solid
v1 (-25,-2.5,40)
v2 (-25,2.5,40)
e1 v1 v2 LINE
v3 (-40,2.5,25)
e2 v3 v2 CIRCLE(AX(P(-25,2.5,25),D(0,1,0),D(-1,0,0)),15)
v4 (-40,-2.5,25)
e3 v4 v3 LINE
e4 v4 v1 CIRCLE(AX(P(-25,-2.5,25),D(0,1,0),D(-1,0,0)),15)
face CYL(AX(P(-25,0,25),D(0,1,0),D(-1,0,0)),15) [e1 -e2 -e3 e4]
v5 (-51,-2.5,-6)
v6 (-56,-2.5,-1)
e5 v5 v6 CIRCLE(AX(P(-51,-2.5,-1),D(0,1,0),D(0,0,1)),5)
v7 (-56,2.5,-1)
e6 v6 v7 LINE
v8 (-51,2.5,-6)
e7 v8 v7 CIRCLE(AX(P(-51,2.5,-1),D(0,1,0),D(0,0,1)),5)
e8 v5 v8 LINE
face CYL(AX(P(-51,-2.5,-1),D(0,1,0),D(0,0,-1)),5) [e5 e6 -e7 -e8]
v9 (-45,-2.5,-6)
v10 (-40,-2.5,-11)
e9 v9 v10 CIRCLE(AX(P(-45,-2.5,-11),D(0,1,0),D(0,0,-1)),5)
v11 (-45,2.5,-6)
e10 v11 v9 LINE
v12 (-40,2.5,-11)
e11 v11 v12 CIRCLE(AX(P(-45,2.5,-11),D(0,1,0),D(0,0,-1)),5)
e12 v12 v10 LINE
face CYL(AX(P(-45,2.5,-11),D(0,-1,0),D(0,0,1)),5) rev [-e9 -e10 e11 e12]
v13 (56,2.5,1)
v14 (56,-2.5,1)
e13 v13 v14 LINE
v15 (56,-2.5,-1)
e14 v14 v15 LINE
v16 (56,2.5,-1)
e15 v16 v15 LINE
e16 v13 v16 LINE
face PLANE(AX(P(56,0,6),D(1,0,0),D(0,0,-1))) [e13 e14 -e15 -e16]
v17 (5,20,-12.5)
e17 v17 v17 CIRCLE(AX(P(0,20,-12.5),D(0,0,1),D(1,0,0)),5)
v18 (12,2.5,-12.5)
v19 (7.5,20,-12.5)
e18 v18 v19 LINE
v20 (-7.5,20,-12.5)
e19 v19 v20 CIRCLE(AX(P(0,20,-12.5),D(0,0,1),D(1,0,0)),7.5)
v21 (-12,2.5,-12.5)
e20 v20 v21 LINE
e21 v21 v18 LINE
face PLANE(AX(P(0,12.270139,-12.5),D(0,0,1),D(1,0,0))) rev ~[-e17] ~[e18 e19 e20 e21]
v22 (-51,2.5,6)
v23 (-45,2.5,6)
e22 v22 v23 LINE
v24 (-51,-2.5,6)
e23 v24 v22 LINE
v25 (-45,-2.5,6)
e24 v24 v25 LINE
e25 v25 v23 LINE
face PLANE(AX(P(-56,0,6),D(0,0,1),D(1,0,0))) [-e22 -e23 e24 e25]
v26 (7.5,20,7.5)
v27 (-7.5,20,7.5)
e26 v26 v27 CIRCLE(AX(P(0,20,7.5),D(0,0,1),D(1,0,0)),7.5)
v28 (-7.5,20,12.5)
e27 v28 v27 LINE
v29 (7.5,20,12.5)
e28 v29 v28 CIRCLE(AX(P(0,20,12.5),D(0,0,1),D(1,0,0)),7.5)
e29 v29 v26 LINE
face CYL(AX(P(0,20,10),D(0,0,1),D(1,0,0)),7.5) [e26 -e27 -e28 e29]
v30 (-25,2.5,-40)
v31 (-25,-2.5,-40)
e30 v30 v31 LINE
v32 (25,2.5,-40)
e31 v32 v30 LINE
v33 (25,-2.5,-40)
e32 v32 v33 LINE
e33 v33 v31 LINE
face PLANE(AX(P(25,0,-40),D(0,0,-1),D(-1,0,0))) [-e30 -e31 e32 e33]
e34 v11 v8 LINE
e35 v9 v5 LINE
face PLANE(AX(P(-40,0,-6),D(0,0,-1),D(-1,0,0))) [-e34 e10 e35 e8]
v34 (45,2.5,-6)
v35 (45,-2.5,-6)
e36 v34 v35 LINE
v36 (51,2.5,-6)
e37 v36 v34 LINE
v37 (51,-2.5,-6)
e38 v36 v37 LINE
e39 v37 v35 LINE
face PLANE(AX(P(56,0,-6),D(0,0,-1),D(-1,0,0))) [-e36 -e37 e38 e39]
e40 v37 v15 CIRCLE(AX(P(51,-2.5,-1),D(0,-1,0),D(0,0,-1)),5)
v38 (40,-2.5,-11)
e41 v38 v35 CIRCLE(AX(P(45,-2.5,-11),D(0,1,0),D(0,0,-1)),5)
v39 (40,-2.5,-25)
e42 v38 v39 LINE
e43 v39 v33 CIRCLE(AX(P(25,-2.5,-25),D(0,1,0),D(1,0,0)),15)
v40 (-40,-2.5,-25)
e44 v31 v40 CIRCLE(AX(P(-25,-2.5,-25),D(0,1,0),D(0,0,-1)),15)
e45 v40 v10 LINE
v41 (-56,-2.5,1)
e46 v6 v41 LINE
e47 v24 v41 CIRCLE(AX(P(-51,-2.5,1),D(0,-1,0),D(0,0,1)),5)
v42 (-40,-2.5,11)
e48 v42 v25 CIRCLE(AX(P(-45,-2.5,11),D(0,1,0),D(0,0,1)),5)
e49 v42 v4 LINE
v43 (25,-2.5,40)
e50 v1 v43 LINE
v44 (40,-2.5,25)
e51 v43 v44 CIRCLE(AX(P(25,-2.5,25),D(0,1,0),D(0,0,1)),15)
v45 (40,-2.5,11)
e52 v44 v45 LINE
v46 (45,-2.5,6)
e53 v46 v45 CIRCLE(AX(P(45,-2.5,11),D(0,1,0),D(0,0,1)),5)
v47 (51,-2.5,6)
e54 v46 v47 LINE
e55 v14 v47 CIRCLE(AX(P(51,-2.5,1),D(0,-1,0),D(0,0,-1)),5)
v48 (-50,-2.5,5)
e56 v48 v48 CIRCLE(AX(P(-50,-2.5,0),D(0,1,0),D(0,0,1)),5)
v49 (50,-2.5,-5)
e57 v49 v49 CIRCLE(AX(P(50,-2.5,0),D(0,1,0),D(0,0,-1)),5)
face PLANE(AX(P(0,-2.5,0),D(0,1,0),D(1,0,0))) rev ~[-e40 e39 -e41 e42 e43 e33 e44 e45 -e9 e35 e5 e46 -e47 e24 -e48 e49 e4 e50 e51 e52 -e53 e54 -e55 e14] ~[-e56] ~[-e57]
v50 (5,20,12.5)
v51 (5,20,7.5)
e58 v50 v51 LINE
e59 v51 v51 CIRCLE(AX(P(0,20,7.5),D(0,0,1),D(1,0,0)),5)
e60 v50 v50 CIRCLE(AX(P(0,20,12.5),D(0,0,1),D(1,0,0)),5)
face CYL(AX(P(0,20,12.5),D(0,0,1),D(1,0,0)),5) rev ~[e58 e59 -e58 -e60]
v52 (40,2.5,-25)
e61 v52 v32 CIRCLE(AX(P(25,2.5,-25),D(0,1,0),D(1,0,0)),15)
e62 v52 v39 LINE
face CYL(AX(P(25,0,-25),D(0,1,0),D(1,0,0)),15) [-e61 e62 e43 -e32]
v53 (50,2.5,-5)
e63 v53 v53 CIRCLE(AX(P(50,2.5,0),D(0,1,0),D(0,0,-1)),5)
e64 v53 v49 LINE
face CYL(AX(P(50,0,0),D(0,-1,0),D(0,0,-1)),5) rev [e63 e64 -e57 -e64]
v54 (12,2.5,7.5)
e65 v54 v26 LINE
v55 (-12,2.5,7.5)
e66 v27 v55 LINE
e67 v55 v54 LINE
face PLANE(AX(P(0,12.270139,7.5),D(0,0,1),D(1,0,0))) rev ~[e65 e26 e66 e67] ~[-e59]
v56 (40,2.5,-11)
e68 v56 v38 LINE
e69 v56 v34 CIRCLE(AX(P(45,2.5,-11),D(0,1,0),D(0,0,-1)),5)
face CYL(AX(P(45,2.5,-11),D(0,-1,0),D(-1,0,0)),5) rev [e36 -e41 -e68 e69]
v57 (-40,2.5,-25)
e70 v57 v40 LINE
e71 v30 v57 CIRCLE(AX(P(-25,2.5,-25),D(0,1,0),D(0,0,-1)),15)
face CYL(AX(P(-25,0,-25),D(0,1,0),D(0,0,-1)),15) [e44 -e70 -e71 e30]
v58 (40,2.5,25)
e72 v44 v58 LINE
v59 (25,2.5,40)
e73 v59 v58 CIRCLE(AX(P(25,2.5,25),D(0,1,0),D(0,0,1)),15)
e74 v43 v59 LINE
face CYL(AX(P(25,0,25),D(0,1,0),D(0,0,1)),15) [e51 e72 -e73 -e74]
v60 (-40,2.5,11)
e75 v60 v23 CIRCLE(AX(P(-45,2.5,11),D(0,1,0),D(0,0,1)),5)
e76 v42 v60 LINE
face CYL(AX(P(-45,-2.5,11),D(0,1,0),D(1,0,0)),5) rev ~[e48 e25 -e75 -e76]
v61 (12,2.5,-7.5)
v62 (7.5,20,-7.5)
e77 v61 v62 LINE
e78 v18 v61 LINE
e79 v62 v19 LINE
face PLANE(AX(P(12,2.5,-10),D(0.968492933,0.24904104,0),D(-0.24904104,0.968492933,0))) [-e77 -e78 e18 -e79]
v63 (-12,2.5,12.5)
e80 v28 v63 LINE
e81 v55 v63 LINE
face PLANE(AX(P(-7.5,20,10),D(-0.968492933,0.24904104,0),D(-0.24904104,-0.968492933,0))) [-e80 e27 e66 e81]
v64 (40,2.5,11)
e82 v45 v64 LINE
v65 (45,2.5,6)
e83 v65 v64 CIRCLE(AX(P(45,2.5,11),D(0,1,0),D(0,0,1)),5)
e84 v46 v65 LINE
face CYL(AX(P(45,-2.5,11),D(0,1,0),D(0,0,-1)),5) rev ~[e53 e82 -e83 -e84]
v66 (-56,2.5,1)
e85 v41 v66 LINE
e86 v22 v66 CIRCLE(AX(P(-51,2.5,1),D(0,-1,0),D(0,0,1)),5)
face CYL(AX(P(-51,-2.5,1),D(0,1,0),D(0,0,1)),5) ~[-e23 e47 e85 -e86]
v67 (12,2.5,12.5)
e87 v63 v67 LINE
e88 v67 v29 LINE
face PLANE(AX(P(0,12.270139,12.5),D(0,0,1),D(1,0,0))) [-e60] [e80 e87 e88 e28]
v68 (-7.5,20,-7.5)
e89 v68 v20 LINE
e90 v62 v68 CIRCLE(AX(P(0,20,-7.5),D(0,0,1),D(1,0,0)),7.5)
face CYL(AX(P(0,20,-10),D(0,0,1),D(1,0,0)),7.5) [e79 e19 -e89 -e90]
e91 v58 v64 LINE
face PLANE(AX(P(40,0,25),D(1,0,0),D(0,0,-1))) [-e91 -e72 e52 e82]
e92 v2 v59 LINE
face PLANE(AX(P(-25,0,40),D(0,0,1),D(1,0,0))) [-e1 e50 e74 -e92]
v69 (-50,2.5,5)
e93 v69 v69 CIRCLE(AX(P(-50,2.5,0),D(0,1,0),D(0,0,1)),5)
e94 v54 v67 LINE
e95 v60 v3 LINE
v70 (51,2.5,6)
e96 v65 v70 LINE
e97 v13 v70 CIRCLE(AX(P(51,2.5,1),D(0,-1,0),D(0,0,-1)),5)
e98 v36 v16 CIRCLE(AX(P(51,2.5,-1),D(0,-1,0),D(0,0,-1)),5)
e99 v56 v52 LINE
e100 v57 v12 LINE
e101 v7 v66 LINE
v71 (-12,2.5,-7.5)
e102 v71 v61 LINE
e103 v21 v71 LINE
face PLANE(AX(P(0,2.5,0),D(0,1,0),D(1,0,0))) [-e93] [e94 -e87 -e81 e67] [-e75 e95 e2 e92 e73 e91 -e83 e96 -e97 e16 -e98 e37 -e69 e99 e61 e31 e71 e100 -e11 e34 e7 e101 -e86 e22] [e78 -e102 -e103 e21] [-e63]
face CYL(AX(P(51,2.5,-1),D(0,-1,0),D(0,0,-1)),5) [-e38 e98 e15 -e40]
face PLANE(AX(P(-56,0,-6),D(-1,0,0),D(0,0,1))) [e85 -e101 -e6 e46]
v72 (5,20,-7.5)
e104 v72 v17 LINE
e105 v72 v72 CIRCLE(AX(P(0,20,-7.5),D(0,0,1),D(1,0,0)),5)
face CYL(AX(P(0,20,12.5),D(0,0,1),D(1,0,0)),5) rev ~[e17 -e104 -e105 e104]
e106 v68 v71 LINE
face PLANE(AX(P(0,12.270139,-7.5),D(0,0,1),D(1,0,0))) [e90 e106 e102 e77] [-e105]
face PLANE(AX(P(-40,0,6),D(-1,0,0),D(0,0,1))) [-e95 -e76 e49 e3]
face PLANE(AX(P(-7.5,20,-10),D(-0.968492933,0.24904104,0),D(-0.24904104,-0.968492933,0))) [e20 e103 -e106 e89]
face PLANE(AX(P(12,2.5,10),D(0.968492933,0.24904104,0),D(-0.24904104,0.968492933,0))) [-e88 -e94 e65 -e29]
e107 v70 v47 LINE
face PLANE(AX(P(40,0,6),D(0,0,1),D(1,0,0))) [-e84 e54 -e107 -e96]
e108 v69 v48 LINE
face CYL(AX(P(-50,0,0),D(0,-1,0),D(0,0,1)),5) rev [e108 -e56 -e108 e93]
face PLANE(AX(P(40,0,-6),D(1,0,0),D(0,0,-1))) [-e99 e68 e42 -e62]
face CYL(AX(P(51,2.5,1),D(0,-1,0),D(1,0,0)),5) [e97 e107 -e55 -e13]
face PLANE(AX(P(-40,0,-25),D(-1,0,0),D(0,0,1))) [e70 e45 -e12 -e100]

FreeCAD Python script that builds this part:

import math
import FreeCAD as App
import Part
import Sketcher
from FreeCAD import Vector
Q = App.Units.Quantity


def edges_at(feature, points):
    """Names of the edges that pass closest to the given points."""
    edges = feature.Shape.Edges
    near = lambda p: min(range(len(edges)), key=lambda i: edges[i].distToShape(Part.Vertex(*p))[0])
    return sorted({f"Edge{near(p) + 1}" for p in points})

doc = App.newDocument("Part")
params = doc.addObject("Spreadsheet::Sheet", "Params")
for row, (alias, value) in enumerate([
    ("sketch1_diameter", "10 mm"),
    ("sketch1_radius", "15 mm"),
    ("sketch1_width", "16 mm"),
    ("sketch1_width2", "50 mm"),
    ("sketch1_height", "12 mm"),
    ("pad1_length", "5 mm"),
    ("fillet_radius", "5 mm"),
    ("sketch2_radius", "7.5 mm"),
    ("sketch2_width", "24 mm"),
    ("pad2_length", "5 mm"),
    ("sketch3_radius", "7.5 mm"),
    ("sketch3_width", "24 mm"),
    ("pad3_length", "5 mm"),
    ("sketch4_diameter", "10 mm"),
    ("pocket1_length", "85 mm"),
], start=1):
    params.set(f"A{row}", alias)
    params.set(f"B{row}", "=" + value)
    params.setAlias(f"B{row}", alias)

body = doc.addObject("PartDesign::Body", "Body")

sketch1 = doc.addObject("Sketcher::SketchObject", "Sketch")
body.addObject(sketch1)
sketch1.AttachmentSupport = (doc.XZ_Plane, [""])
sketch1.MapMode = "FlatFace"
sketch1.addGeometry([
    Part.LineSegment(Vector(-40, -6, 0), Vector(-56, -6, 0)),
    Part.LineSegment(Vector(-56, -6, 0), Vector(-56, 6, 0)),
    Part.LineSegment(Vector(-56, 6, 0), Vector(-40, 6, 0)),
    Part.LineSegment(Vector(-40, 6, 0), Vector(-40, 25, 0)),
    Part.ArcOfCircle(Part.Circle(Vector(-25, 25, 0), Vector(0, 0, 1), 15), math.radians(90), math.radians(180)),
    Part.LineSegment(Vector(-25, 40, 0), Vector(25, 40, 0)),
    Part.ArcOfCircle(Part.Circle(Vector(25, 25, 0), Vector(0, 0, 1), 15), math.radians(0), math.radians(90)),
    Part.LineSegment(Vector(40, 25, 0), Vector(40, 6, 0)),
    Part.LineSegment(Vector(40, 6, 0), Vector(56, 6, 0)),
    Part.LineSegment(Vector(56, 6, 0), Vector(56, -6, 0)),
    Part.LineSegment(Vector(56, -6, 0), Vector(40, -6, 0)),
    Part.LineSegment(Vector(40, -6, 0), Vector(40, -25, 0)),
    Part.ArcOfCircle(Part.Circle(Vector(25, -25, 0), Vector(0, 0, 1), 15), math.radians(-90), math.radians(0)),
    Part.LineSegment(Vector(25, -40, 0), Vector(-25, -40, 0)),
    Part.ArcOfCircle(Part.Circle(Vector(-25, -25, 0), Vector(0, 0, 1), 15), math.radians(180), math.radians(270)),
    Part.LineSegment(Vector(-40, -25, 0), Vector(-40, -6, 0)),
    Part.Circle(Vector(-50, 0, 0), Vector(0, 0, 1), 5),
    Part.Circle(Vector(50, 0, 0), Vector(0, 0, 1), 5),
], False)
sketch1.addConstraint([
    Sketcher.Constraint("Coincident", 0, 2, 1, 1),
    Sketcher.Constraint("Coincident", 1, 2, 2, 1),
    Sketcher.Constraint("Coincident", 2, 2, 3, 1),
    Sketcher.Constraint("Tangent", 3, 2, 4, 2),
    Sketcher.Constraint("Tangent", 4, 1, 5, 1),
    Sketcher.Constraint("Tangent", 5, 2, 6, 2),
    Sketcher.Constraint("Tangent", 6, 1, 7, 1),
    Sketcher.Constraint("Coincident", 7, 2, 8, 1),
    Sketcher.Constraint("Coincident", 8, 2, 9, 1),
    Sketcher.Constraint("Coincident", 9, 2, 10, 1),
    Sketcher.Constraint("Coincident", 10, 2, 11, 1),
    Sketcher.Constraint("Tangent", 11, 2, 12, 2),
    Sketcher.Constraint("Tangent", 12, 1, 13, 1),
    Sketcher.Constraint("Tangent", 13, 2, 14, 2),
    Sketcher.Constraint("Tangent", 14, 1, 15, 1),
    Sketcher.Constraint("Coincident", 15, 2, 0, 1),
    Sketcher.Constraint("Horizontal", 0),
    Sketcher.Constraint("Vertical", 1),
    Sketcher.Constraint("Horizontal", 2),
    Sketcher.Constraint("Vertical", 3),
    Sketcher.Constraint("Horizontal", 5),
    Sketcher.Constraint("Vertical", 7),
    Sketcher.Constraint("Horizontal", 8),
    Sketcher.Constraint("Vertical", 9),
    Sketcher.Constraint("Horizontal", 10),
    Sketcher.Constraint("Vertical", 11),
    Sketcher.Constraint("Horizontal", 13),
    Sketcher.Constraint("Vertical", 15),
    Sketcher.Constraint("Equal", 4, 6),
    Sketcher.Constraint("Equal", 6, 12),
    Sketcher.Constraint("Equal", 12, 14),
    Sketcher.Constraint("Equal", 16, 17),
    Sketcher.Constraint("Symmetric", 4, 3, 12, 3, -1, 1),
    Sketcher.Constraint("Symmetric", 16, 3, 17, 3, -1, 1),
    Sketcher.Constraint("Symmetric", 0, 2, 8, 2, -1, 1),
    Sketcher.Constraint("Symmetric", 2, 2, 7, 2, -2),
    Sketcher.Constraint("Symmetric", 10, 2, 15, 2, -2),
    Sketcher.Constraint("PointOnObject", 16, 3, -1),
    Sketcher.Constraint("Diameter", 16, Q("10 mm")),
    Sketcher.Constraint("Radius", 4, Q("15 mm")),
    Sketcher.Constraint("DistanceX", 0, 2, 0, 1, Q("16 mm")),
    Sketcher.Constraint("DistanceX", 5, 1, 5, 2, Q("50 mm")),
    Sketcher.Constraint("DistanceY", 1, 1, 1, 2, Q("12 mm")),
    Sketcher.Constraint("DistanceY", 3, 1, 3, 2, Q("19 mm")),
    Sketcher.Constraint("DistanceX", 16, 3, -1, 1, Q("50 mm")),
])
sketch1.setExpression("Constraints[38]", "Params.sketch1_diameter")
sketch1.setExpression("Constraints[39]", "Params.sketch1_radius")
sketch1.setExpression("Constraints[40]", "Params.sketch1_width")
sketch1.setExpression("Constraints[41]", "Params.sketch1_width2")
sketch1.setExpression("Constraints[42]", "Params.sketch1_height")
pad1 = doc.addObject("PartDesign::Pad", "Pad")
body.addObject(pad1)
pad1.Profile = sketch1
pad1.setExpression("Length", "Params.pad1_length")
pad1.Midplane = True
doc.recompute()

fillet = doc.addObject("PartDesign::Fillet", "Fillet")
body.addObject(fillet)
fillet.Base = (pad1, edges_at(pad1, [
    (40, 0, -6),
    (56, 0, -6),
    (56, 0, 6),
    (40, 0, 6),
    (-40, 0, 6),
    (-56, 0, 6),
    (-56, 0, -6),
    (-40, 0, -6),
]))
fillet.setExpression("Radius", "Params.fillet_radius")

sketch2 = doc.addObject("Sketcher::SketchObject", "Sketch001")
body.addObject(sketch2)
sketch2.AttachmentSupport = (doc.XY_Plane, [""])
sketch2.MapMode = "FlatFace"
sketch2.AttachmentOffset = App.Placement(Vector(0, 0, 10), App.Rotation())
sketch2.addGeometry([
    Part.LineSegment(Vector(-7.5, 20, 0), Vector(-12, 2.5, 0)),
    Part.LineSegment(Vector(-12, 2.5, 0), Vector(12, 2.5, 0)),
    Part.LineSegment(Vector(12, 2.5, 0), Vector(7.5, 20, 0)),
    Part.ArcOfCircle(Part.Circle(Vector(0, 20, 0), Vector(0, 0, 1), 7.5), math.radians(0), math.radians(180)),
], False)
sketch2.addConstraint([
    Sketcher.Constraint("Coincident", 0, 2, 1, 1),
    Sketcher.Constraint("Coincident", 1, 2, 2, 1),
    Sketcher.Constraint("Coincident", 2, 2, 3, 1),
    Sketcher.Constraint("Coincident", 3, 2, 0, 1),
    Sketcher.Constraint("Horizontal", 1),
    Sketcher.Constraint("Symmetric", 2, 2, 3, 2, -2),
    Sketcher.Constraint("Horizontal", 3, 3, 2, 2),
    Sketcher.Constraint("Equal", 0, 2),
    Sketcher.Constraint("Radius", 3, Q("7.5 mm")),
    Sketcher.Constraint("DistanceX", 1, 1, 1, 2, Q("24 mm")),
    Sketcher.Constraint("DistanceY", -1, 1, 3, 3, Q("20 mm")),
    Sketcher.Constraint("DistanceY", -1, 1, 0, 2, Q("2.5 mm")),
])
sketch2.setExpression("Constraints[8]", "Params.sketch2_radius")
sketch2.setExpression("Constraints[9]", "Params.sketch2_width")
pad2 = doc.addObject("PartDesign::Pad", "Pad001")
body.addObject(pad2)
pad2.Profile = sketch2
pad2.setExpression("Length", "Params.pad2_length")
pad2.Midplane = True

sketch3 = doc.addObject("Sketcher::SketchObject", "Sketch002")
body.addObject(sketch3)
sketch3.AttachmentSupport = (doc.XY_Plane, [""])
sketch3.MapMode = "FlatFace"
sketch3.AttachmentOffset = App.Placement(Vector(0, 0, -10), App.Rotation())
sketch3.addGeometry([
    Part.LineSegment(Vector(-7.5, 20, 0), Vector(-12, 2.5, 0)),
    Part.LineSegment(Vector(-12, 2.5, 0), Vector(12, 2.5, 0)),
    Part.LineSegment(Vector(12, 2.5, 0), Vector(7.5, 20, 0)),
    Part.ArcOfCircle(Part.Circle(Vector(0, 20, 0), Vector(0, 0, 1), 7.5), math.radians(0), math.radians(180)),
], False)
sketch3.addConstraint([
    Sketcher.Constraint("Coincident", 0, 2, 1, 1),
    Sketcher.Constraint("Coincident", 1, 2, 2, 1),
    Sketcher.Constraint("Coincident", 2, 2, 3, 1),
    Sketcher.Constraint("Coincident", 3, 2, 0, 1),
    Sketcher.Constraint("Horizontal", 1),
    Sketcher.Constraint("Symmetric", 2, 2, 3, 2, -2),
    Sketcher.Constraint("Horizontal", 3, 3, 2, 2),
    Sketcher.Constraint("Equal", 0, 2),
    Sketcher.Constraint("Radius", 3, Q("7.5 mm")),
    Sketcher.Constraint("DistanceX", 1, 1, 1, 2, Q("24 mm")),
    Sketcher.Constraint("DistanceY", -1, 1, 3, 3, Q("20 mm")),
    Sketcher.Constraint("DistanceY", -1, 1, 0, 2, Q("2.5 mm")),
])
sketch3.setExpression("Constraints[8]", "Params.sketch3_radius")
sketch3.setExpression("Constraints[9]", "Params.sketch3_width")
pad3 = doc.addObject("PartDesign::Pad", "Pad002")
body.addObject(pad3)
pad3.Profile = sketch3
pad3.setExpression("Length", "Params.pad3_length")
pad3.Midplane = True

sketch4 = doc.addObject("Sketcher::SketchObject", "Sketch003")
body.addObject(sketch4)
sketch4.AttachmentSupport = (doc.XY_Plane, [""])
sketch4.MapMode = "FlatFace"
sketch4.AttachmentOffset = App.Placement(Vector(0, 0, 12.5), App.Rotation())
sketch4.addGeometry(Part.Circle(Vector(0, 20, 0), Vector(0, 0, 1), 5), False)
sketch4.addConstraint([
    Sketcher.Constraint("PointOnObject", 0, 3, -2),
    Sketcher.Constraint("Diameter", 0, Q("10 mm")),
    Sketcher.Constraint("DistanceY", -1, 1, 0, 3, Q("20 mm")),
])
sketch4.setExpression("Constraints[1]", "Params.sketch4_diameter")
pocket1 = doc.addObject("PartDesign::Pocket", "Pocket")
body.addObject(pocket1)
pocket1.Profile = sketch4
pocket1.setExpression("Length", "Params.pocket1_length")

doc.recompute()
